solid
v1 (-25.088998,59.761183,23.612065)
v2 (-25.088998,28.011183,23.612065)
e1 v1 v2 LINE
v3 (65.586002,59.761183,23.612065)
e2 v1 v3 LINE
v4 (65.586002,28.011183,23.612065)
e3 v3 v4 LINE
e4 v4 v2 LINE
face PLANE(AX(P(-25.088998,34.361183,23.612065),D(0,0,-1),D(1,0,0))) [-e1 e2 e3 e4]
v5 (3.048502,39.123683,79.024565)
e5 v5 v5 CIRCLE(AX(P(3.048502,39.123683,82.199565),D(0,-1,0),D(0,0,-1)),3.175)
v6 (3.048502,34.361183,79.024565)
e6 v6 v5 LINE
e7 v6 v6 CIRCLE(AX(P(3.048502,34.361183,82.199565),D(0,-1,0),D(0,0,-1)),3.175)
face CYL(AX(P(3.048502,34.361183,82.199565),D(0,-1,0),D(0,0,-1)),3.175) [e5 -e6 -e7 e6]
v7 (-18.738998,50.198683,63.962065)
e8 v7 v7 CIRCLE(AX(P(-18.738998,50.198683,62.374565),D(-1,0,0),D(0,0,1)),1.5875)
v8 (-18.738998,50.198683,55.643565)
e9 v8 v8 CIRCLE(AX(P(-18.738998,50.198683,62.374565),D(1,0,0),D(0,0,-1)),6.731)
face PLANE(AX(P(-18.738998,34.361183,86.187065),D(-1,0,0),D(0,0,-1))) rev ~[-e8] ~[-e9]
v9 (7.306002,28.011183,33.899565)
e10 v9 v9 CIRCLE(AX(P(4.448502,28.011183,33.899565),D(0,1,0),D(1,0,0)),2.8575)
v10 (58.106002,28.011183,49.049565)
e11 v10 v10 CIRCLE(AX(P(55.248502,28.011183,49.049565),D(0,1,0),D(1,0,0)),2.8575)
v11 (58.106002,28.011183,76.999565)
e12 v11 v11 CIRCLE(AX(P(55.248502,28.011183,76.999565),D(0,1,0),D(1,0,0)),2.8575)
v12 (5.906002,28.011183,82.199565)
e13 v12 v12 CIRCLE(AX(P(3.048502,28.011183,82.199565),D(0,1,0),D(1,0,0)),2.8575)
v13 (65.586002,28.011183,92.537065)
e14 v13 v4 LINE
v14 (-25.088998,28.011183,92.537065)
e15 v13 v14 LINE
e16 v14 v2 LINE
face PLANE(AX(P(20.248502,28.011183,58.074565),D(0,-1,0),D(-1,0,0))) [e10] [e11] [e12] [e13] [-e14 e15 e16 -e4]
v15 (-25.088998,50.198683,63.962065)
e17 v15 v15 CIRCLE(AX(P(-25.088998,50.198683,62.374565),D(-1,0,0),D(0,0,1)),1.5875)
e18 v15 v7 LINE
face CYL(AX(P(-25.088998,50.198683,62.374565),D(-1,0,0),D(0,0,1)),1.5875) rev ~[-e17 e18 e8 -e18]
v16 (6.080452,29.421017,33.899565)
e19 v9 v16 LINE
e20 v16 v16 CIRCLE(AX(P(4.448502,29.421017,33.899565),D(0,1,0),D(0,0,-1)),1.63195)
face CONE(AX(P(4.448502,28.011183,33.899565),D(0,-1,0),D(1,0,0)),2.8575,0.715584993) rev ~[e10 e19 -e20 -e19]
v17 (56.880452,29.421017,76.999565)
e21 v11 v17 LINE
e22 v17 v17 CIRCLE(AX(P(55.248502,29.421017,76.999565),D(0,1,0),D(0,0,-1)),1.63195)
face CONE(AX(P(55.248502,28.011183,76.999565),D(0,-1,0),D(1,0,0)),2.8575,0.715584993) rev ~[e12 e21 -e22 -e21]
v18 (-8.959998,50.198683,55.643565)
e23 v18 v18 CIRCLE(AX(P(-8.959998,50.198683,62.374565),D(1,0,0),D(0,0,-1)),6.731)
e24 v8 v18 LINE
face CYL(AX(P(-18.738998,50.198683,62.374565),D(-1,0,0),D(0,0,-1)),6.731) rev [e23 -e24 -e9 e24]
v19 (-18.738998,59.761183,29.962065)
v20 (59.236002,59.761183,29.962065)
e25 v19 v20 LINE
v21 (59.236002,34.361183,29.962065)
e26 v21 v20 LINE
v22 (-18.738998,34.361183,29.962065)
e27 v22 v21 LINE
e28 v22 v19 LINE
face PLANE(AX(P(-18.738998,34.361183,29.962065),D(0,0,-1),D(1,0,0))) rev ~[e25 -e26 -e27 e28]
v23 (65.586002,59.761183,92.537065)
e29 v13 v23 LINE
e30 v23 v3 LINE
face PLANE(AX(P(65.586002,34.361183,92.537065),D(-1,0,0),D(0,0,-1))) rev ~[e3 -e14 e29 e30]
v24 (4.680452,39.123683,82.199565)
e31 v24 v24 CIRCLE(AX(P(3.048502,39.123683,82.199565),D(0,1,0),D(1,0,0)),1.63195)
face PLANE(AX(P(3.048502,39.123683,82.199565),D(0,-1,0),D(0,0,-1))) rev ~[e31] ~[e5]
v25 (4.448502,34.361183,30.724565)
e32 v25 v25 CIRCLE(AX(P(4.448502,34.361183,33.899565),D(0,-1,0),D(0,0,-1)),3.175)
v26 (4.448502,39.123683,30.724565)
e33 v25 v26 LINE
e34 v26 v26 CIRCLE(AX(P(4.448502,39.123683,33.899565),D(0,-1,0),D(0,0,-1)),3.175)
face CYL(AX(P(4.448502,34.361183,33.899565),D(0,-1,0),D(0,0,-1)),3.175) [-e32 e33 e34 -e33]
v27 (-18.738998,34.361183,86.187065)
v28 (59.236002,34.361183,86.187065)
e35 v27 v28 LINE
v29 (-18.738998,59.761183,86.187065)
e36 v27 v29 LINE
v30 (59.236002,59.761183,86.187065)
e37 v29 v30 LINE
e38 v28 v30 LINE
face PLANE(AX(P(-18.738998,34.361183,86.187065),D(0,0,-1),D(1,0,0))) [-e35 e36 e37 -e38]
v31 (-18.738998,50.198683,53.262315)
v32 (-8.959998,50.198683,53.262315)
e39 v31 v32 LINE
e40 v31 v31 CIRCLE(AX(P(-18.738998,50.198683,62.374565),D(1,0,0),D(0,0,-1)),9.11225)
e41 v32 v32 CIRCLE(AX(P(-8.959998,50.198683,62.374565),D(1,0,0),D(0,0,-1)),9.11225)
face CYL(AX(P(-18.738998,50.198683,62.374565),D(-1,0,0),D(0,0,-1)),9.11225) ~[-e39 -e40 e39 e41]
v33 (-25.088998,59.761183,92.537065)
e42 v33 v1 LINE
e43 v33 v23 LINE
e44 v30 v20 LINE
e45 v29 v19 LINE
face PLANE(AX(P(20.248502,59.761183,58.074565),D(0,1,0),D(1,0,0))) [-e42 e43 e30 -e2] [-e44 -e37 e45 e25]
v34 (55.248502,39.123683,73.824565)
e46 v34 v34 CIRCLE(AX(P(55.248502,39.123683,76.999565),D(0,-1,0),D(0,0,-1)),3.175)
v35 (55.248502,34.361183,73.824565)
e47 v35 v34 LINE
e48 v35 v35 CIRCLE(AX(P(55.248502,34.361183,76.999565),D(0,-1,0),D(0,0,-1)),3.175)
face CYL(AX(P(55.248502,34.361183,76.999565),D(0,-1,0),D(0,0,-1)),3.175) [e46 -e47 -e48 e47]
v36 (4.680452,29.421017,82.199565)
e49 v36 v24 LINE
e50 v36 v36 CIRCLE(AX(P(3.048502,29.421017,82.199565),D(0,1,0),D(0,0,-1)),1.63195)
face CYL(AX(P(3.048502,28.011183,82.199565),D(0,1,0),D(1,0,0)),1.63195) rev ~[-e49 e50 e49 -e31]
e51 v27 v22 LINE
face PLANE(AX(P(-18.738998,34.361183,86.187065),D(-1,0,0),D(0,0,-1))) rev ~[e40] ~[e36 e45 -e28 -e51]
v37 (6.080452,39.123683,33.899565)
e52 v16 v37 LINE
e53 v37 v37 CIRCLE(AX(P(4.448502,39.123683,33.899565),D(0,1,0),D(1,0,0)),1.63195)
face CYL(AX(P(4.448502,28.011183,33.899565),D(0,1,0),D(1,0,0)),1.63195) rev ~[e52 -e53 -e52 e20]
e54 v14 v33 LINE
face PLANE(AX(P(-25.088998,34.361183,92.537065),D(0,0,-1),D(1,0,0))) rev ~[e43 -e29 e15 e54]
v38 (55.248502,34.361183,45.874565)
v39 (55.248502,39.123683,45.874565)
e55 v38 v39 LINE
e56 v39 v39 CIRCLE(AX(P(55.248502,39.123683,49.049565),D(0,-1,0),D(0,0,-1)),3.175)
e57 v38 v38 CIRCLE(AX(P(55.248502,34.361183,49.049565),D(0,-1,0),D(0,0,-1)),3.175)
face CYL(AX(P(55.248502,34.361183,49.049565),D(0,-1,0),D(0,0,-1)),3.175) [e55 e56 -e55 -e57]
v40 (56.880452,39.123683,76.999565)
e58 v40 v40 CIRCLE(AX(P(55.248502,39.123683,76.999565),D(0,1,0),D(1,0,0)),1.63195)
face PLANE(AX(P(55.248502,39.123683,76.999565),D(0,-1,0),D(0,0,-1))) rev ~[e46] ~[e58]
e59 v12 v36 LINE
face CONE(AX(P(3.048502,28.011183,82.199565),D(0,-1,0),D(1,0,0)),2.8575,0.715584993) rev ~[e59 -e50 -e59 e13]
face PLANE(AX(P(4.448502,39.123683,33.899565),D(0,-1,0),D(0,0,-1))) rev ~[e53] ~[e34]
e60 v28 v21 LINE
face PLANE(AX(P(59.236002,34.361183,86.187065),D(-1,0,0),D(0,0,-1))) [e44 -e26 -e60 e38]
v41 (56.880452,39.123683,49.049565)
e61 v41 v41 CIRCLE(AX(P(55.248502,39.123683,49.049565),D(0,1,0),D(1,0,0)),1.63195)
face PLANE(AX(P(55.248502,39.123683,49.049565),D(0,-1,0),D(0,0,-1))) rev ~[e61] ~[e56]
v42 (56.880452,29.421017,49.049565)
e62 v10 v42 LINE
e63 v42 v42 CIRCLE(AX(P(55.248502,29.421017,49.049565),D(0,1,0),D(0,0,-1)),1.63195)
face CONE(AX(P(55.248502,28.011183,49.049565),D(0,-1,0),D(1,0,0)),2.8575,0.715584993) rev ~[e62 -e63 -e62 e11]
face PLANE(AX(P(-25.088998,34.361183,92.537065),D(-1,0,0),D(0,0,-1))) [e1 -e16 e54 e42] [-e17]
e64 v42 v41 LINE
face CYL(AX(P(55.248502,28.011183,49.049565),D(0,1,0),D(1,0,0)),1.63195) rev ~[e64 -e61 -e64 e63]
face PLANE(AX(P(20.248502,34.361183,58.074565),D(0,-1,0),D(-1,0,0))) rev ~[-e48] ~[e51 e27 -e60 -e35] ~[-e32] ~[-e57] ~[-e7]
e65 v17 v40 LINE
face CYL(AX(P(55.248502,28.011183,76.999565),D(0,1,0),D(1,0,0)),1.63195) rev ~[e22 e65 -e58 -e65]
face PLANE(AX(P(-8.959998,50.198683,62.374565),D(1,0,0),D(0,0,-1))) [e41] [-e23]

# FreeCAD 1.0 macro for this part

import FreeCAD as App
import Part
import Sketcher
from FreeCAD import Vector
Q = App.Units.Quantity


def add_polygon(sketch, points):
    """Adds a closed chain of lines whose ends are joined by coincident constraints."""
    first, n = sketch.GeometryCount, len(points)
    for a, b in zip(points, points[1:] + points[:1]):
        sketch.addGeometry(Part.LineSegment(App.Vector(*a, 0), App.Vector(*b, 0)), False)
    for i in range(n):
        sketch.addConstraint(Sketcher.Constraint("Coincident", first + i, 2, first + (i + 1) % n, 1))

doc = App.newDocument("Part")
params = doc.addObject("Spreadsheet::Sheet", "Params")
for row, (alias, value) in enumerate([
    ("pad1_length", "0.25 in"),
    ("sketch2_diameter", "0.25 in"),
    ("pad2_length", "0.1875 in"),
    ("hole_diameter", "0.1285 in"),
    ("hole_csink_diameter", "0.225 in"),
    ("pad3_length", "1 in"),
    ("sketch5_diameter", "0.53 in"),
    ("pad4_length", "0.385 in"),
    ("sketch6_diameter", "0.125 in"),
], start=1):
    params.set(f"A{row}", alias)
    params.set(f"B{row}", "=" + value)
    params.setAlias(f"B{row}", alias)

body = doc.addObject("PartDesign::Body", "Body")

# Sketch on XZ plane
sketch1 = doc.addObject("Sketcher::SketchObject", "Sketch")
body.addObject(sketch1)
sketch1.AttachmentSupport = (doc.XZ_Plane, [""])
sketch1.MapMode = "FlatFace"
sketch1.AttachmentOffset = App.Placement(Vector(0, 0, -34.361183), App.Rotation())
add_polygon(sketch1, [(66, 24), (66, 93), (-25, 93), (-25, 24)])  # lines 0-3
sketch1.addConstraint(Sketcher.Constraint("Vertical", 0))
sketch1.addConstraint(Sketcher.Constraint("Horizontal", 1))
sketch1.addConstraint(Sketcher.Constraint("Vertical", 2))
sketch1.addConstraint(Sketcher.Constraint("Horizontal", 3))
sketch1.addConstraint(Sketcher.Constraint("DistanceX", 1, 2, 1, 1, Q("90.675 mm")))
sketch1.addConstraint(Sketcher.Constraint("DistanceY", 0, 1, 0, 2, Q("68.925 mm")))
sketch1.addConstraint(Sketcher.Constraint("DistanceX", -1, 1, 0, 2, Q("65.586002 mm")))
sketch1.addConstraint(Sketcher.Constraint("DistanceY", -1, 1, 0, 2, Q("92.537065 mm")))
pad1 = doc.addObject("PartDesign::Pad", "Pad")
body.addObject(pad1)
pad1.Profile = sketch1
pad1.setExpression("Length", "Params.pad1_length")

# Sketch on XZ plane
sketch2 = doc.addObject("Sketcher::SketchObject", "Sketch001")
body.addObject(sketch2)
sketch2.AttachmentSupport = (doc.XZ_Plane, [""])
sketch2.MapMode = "FlatFace"
sketch2.AttachmentOffset = App.Placement(Vector(0, 0, -34.361183), App.Rotation())
sketch2.addGeometry(Part.Circle(Vector(4.4, 33.9, 0), Vector(0, 0, 1), 3.2), False)
sketch2.addGeometry(Part.Circle(Vector(55.2, 49, 0), Vector(0, 0, 1), 3.2), False)
sketch2.addGeometry(Part.Circle(Vector(55.2, 77, 0), Vector(0, 0, 1), 3.2), False)
sketch2.addGeometry(Part.Circle(Vector(3, 82.2, 0), Vector(0, 0, 1), 3.2), False)
sketch2.addConstraint(Sketcher.Constraint("Equal", 0, 1))
sketch2.addConstraint(Sketcher.Constraint("Equal", 1, 2))
sketch2.addConstraint(Sketcher.Constraint("Equal", 2, 3))
sketch2.addConstraint(Sketcher.Constraint("Vertical", 1, 3, 2, 3))
sketch2.addConstraint(Sketcher.Constraint("Diameter", 0, Q("0.25 in")))
sketch2.addConstraint(Sketcher.Constraint("DistanceX", 0, 3, 1, 3, Q("2 in")))
sketch2.addConstraint(Sketcher.Constraint("DistanceX", -1, 1, 0, 3, Q("4.448502 mm")))
sketch2.addConstraint(Sketcher.Constraint("DistanceX", -1, 1, 3, 3, Q("3.048502 mm")))
sketch2.addConstraint(Sketcher.Constraint("DistanceY", 0, 3, 1, 3, Q("15.15 mm")))
sketch2.addConstraint(Sketcher.Constraint("DistanceY", 1, 3, 2, 3, Q("27.95 mm")))
sketch2.addConstraint(Sketcher.Constraint("DistanceY", 0, 3, 3, 3, Q("48.3 mm")))
sketch2.addConstraint(Sketcher.Constraint("DistanceY", -1, 1, 0, 3, Q("33.899565 mm")))
sketch2.setExpression("Constraints[4]", "Params.sketch2_diameter")
pad2 = doc.addObject("PartDesign::Pad", "Pad001")
body.addObject(pad2)
pad2.Profile = sketch2
pad2.setExpression("Length", "Params.pad2_length")
pad2.Reversed = True

# Sketch on XZ plane
sketch3 = doc.addObject("Sketcher::SketchObject", "Sketch002")
body.addObject(sketch3)
sketch3.AttachmentSupport = (doc.XZ_Plane, [""])
sketch3.MapMode = "FlatFace"
sketch3.AttachmentOffset = App.Placement(Vector(0, 0, -28.011183), App.Rotation())
sketch3.addGeometry(Part.Circle(Vector(3, 82.2, 0), Vector(0, 0, 1), 1.6), False)
sketch3.addGeometry(Part.Circle(Vector(55.2, 77, 0), Vector(0, 0, 1), 1.6), False)
sketch3.addGeometry(Part.Circle(Vector(55.2, 49, 0), Vector(0, 0, 1), 1.6), False)
sketch3.addGeometry(Part.Circle(Vector(4.4, 33.9, 0), Vector(0, 0, 1), 1.6), False)
sketch3.addConstraint(Sketcher.Constraint("Equal", 0, 1))
sketch3.addConstraint(Sketcher.Constraint("Equal", 1, 2))
sketch3.addConstraint(Sketcher.Constraint("Equal", 2, 3))
sketch3.addConstraint(Sketcher.Constraint("Vertical", 1, 3, 2, 3))
sketch3.addConstraint(Sketcher.Constraint("DistanceX", 3, 3, 2, 3, Q("2 in")))
sketch3.addConstraint(Sketcher.Constraint("Diameter", 0, Q("0.1285 in")))
sketch3.addConstraint(Sketcher.Constraint("DistanceX", -1, 1, 0, 3, Q("3.048502 mm")))
sketch3.addConstraint(Sketcher.Constraint("DistanceX", -1, 1, 1, 3, Q("55.248502 mm")))
sketch3.addConstraint(Sketcher.Constraint("DistanceY", 1, 3, 0, 3, Q("5.2 mm")))
sketch3.addConstraint(Sketcher.Constraint("DistanceY", 2, 3, 1, 3, Q("27.95 mm")))
sketch3.addConstraint(Sketcher.Constraint("DistanceY", 3, 3, 0, 3, Q("48.3 mm")))
sketch3.addConstraint(Sketcher.Constraint("DistanceY", -1, 1, 0, 3, Q("82.199565 mm")))
doc.recompute()
hole = doc.addObject("PartDesign::Hole", "Hole")
body.addObject(hole)
hole.Profile = sketch3
hole.ThreadType = "None"
hole.setExpression("Diameter", "Params.hole_diameter")
hole.DepthType = "ThroughAll"
hole.HoleCutType = "Countersink"
hole.setExpression("HoleCutDiameter", "Params.hole_csink_diameter")
hole.HoleCutCountersinkAngle = 82

# Sketch on XZ plane
sketch4 = doc.addObject("Sketcher::SketchObject", "Sketch003")
body.addObject(sketch4)
sketch4.AttachmentSupport = (doc.XZ_Plane, [""])
sketch4.MapMode = "FlatFace"
sketch4.AttachmentOffset = App.Placement(Vector(0, 0, -34.361183), App.Rotation())
add_polygon(sketch4, [(-25, 24), (-25, 93), (66, 93), (66, 24)])  # lines 0-3
add_polygon(sketch4, [(59, 86), (-19, 86), (-19, 30), (59, 30)])  # lines 4-7
sketch4.addConstraint(Sketcher.Constraint("Vertical", 0))
sketch4.addConstraint(Sketcher.Constraint("Horizontal", 1))
sketch4.addConstraint(Sketcher.Constraint("Vertical", 2))
sketch4.addConstraint(Sketcher.Constraint("Horizontal", 3))
sketch4.addConstraint(Sketcher.Constraint("Horizontal", 4))
sketch4.addConstraint(Sketcher.Constraint("Vertical", 5))
sketch4.addConstraint(Sketcher.Constraint("Horizontal", 6))
sketch4.addConstraint(Sketcher.Constraint("Vertical", 7))
sketch4.addConstraint(Sketcher.Constraint("DistanceX", 0, 2, 4, 2, Q("0.25 in")))
sketch4.addConstraint(Sketcher.Constraint("DistanceY", 4, 2, 0, 2, Q("0.25 in")))
sketch4.addConstraint(Sketcher.Constraint("DistanceY", 3, 2, 5, 2, Q("0.25 in")))
sketch4.addConstraint(Sketcher.Constraint("DistanceX", 6, 2, 2, 2, Q("0.25 in")))
sketch4.addConstraint(Sketcher.Constraint("DistanceX", 1, 1, 1, 2, Q("90.675 mm")))
sketch4.addConstraint(Sketcher.Constraint("DistanceY", 0, 1, 0, 2, Q("68.925 mm")))
sketch4.addConstraint(Sketcher.Constraint("DistanceX", 0, 2, -1, 1, Q("25.088998 mm")))
sketch4.addConstraint(Sketcher.Constraint("DistanceY", -1, 1, 0, 2, Q("92.537065 mm")))
pad3 = doc.addObject("PartDesign::Pad", "Pad002")
body.addObject(pad3)
pad3.Profile = sketch4
pad3.setExpression("Length", "Params.pad3_length")
pad3.Reversed = True

# Sketch on YZ plane
sketch5 = doc.addObject("Sketcher::SketchObject", "Sketch004")
body.addObject(sketch5)
sketch5.AttachmentSupport = (doc.YZ_Plane, [""])
sketch5.MapMode = "FlatFace"
sketch5.AttachmentOffset = App.Placement(Vector(0, 0, -18.738998), App.Rotation())
sketch5.addGeometry(Part.Circle(Vector(50, 62, 0), Vector(0, 0, 1), 9), False)
sketch5.addGeometry(Part.Circle(Vector(50, 62, 0), Vector(0, 0, 1), 7), False)
sketch5.addConstraint(Sketcher.Constraint("Coincident", 1, 3, 0, 3))
sketch5.addConstraint(Sketcher.Constraint("Diameter", 1, Q("0.53 in")))
sketch5.addConstraint(Sketcher.Constraint("Diameter", 0, Q("0.7175 in")))
sketch5.addConstraint(Sketcher.Constraint("DistanceX", -1, 1, 0, 3, Q("50.198683 mm")))
sketch5.addConstraint(Sketcher.Constraint("DistanceY", -1, 1, 0, 3, Q("62.374565 mm")))
sketch5.setExpression("Constraints[1]", "Params.sketch5_diameter")
pad4 = doc.addObject("PartDesign::Pad", "Pad003")
body.addObject(pad4)
pad4.Profile = sketch5
pad4.setExpression("Length", "Params.pad4_length")

# Sketch on YZ plane
sketch6 = doc.addObject("Sketcher::SketchObject", "Sketch005")
body.addObject(sketch6)
sketch6.AttachmentSupport = (doc.YZ_Plane, [""])
sketch6.MapMode = "FlatFace"
sketch6.AttachmentOffset = App.Placement(Vector(0, 0, -25.088998), App.Rotation())
sketch6.addGeometry(Part.Circle(Vector(50.2, 62.4, 0), Vector(0, 0, 1), 1.6), False)
sketch6.addConstraint(Sketcher.Constraint("Diameter", 0, Q("0.125 in")))
sketch6.addConstraint(Sketcher.Constraint("DistanceX", -1, 1, 0, 3, Q("50.198683 mm")))
sketch6.addConstraint(Sketcher.Constraint("DistanceY", -1, 1, 0, 3, Q("62.374565 mm")))
sketch6.setExpression("Constraints[0]", "Params.sketch6_diameter")
pocket1 = doc.addObject("PartDesign::Pocket", "Pocket")
body.addObject(pocket1)
pocket1.Profile = sketch6
pocket1.Type = "UpToFirst"
pocket1.Reversed = True

doc.recompute()
